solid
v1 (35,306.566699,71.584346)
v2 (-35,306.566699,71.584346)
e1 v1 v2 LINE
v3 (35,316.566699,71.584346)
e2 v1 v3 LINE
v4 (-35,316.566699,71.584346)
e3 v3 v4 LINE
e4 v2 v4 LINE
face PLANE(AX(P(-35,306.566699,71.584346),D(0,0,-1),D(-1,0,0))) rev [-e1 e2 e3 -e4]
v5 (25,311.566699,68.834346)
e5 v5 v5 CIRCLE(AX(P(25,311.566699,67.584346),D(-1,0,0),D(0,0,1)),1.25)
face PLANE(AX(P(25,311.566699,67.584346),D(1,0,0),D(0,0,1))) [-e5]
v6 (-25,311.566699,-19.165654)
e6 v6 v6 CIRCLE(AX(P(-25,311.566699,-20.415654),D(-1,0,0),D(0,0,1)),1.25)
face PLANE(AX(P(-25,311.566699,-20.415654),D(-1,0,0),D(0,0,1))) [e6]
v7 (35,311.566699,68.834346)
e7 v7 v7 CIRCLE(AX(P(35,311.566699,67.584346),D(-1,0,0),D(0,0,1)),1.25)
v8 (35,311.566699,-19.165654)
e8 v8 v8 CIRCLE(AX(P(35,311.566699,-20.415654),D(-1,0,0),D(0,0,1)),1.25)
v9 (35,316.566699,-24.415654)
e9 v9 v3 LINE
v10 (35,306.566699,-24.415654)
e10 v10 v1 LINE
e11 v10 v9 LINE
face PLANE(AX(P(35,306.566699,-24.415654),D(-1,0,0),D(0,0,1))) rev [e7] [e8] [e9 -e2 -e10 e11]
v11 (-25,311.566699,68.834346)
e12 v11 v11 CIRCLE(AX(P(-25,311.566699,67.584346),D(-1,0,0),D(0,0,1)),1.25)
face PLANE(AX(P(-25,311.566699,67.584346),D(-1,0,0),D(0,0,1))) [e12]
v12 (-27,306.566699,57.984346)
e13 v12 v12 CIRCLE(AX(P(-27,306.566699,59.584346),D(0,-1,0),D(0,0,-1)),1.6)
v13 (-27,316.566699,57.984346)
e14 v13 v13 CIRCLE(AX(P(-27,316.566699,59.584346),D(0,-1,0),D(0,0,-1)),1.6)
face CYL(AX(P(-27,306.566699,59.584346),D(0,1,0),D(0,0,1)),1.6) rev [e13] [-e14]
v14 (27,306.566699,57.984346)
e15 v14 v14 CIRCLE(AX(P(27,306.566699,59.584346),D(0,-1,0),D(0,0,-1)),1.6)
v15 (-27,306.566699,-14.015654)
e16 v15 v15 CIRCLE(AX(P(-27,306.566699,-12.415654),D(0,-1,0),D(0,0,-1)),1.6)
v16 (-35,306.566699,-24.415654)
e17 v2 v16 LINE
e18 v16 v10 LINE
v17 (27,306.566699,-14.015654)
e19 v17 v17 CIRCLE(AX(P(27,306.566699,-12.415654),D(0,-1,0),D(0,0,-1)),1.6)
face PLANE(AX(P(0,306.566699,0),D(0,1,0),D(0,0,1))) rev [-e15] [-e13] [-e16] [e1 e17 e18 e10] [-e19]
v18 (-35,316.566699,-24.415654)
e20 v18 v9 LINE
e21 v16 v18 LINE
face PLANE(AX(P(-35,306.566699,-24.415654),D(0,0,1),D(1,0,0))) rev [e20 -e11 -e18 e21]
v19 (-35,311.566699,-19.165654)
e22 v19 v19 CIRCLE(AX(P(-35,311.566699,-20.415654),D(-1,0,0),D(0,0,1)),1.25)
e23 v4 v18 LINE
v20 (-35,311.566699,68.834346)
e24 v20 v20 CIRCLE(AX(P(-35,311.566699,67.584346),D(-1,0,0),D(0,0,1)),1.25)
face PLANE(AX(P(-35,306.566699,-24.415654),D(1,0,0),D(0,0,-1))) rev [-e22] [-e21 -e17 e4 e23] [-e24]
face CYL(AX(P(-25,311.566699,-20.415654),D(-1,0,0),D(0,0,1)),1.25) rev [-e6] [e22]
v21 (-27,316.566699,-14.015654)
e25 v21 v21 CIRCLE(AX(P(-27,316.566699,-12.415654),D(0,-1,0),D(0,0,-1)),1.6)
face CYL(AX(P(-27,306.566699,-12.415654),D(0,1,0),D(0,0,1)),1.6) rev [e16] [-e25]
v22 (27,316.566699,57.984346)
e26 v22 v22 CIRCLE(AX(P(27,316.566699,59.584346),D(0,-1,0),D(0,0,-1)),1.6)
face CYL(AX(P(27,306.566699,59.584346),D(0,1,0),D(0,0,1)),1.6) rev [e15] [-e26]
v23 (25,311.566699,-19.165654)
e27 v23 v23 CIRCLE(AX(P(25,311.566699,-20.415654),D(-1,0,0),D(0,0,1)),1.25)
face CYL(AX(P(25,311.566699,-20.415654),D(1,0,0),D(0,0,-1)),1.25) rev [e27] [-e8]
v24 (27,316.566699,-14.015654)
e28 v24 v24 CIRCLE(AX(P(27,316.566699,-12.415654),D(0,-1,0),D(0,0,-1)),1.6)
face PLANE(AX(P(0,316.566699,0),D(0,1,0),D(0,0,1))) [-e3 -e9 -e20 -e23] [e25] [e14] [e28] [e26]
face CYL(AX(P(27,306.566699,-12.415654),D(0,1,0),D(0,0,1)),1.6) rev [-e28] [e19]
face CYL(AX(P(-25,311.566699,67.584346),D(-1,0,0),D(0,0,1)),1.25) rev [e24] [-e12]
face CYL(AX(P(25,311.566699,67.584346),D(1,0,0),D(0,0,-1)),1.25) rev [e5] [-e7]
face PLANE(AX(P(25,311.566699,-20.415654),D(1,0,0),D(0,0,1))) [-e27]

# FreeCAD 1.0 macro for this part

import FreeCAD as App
import Part
import Sketcher

V = App.Vector
Q = App.Units.Quantity

doc = App.newDocument("Part")
body = doc.addObject("PartDesign::Body", "Body")

# Sketch on XZ plane
sketch1 = body.newObject("Sketcher::SketchObject", "Sketch")
sketch1.AttachmentSupport = (doc.getObject("XZ_Plane"), [""])
sketch1.MapMode = "FlatFace"
sketch1.AttachmentOffset = App.Placement(V(0, 0, -316.566699), App.Rotation())
sketch1.addGeometry(Part.LineSegment(V(-35, 71.6, 0), V(-35, -24.4, 0)), False)
sketch1.addGeometry(Part.LineSegment(V(-35, -24.4, 0), V(35, -24.4, 0)), False)
sketch1.addGeometry(Part.LineSegment(V(35, -24.4, 0), V(35, 71.6, 0)), False)
sketch1.addGeometry(Part.LineSegment(V(35, 71.6, 0), V(-35, 71.6, 0)), False)
sketch1.addGeometry(Part.Circle(V(-27, -12.4, 0), V(0, 0, 1), 1.6), False)
sketch1.addGeometry(Part.Circle(V(27, -12.4, 0), V(0, 0, 1), 1.6), False)
sketch1.addGeometry(Part.Circle(V(-27, 59.6, 0), V(0, 0, 1), 1.6), False)
sketch1.addGeometry(Part.Circle(V(27, 59.6, 0), V(0, 0, 1), 1.6), False)
sketch1.addConstraint(Sketcher.Constraint("Coincident", 0, 2, 1, 1))
sketch1.addConstraint(Sketcher.Constraint("Coincident", 1, 2, 2, 1))
sketch1.addConstraint(Sketcher.Constraint("Coincident", 2, 2, 3, 1))
sketch1.addConstraint(Sketcher.Constraint("Coincident", 3, 2, 0, 1))
sketch1.addConstraint(Sketcher.Constraint("Vertical", 0))
sketch1.addConstraint(Sketcher.Constraint("Horizontal", 1))
sketch1.addConstraint(Sketcher.Constraint("Vertical", 2))
sketch1.addConstraint(Sketcher.Constraint("Horizontal", 3))
sketch1.addConstraint(Sketcher.Constraint("Equal", 4, 5))
sketch1.addConstraint(Sketcher.Constraint("Equal", 5, 6))
sketch1.addConstraint(Sketcher.Constraint("Equal", 6, 7))
sketch1.addConstraint(Sketcher.Constraint("Symmetric", 4, 3, 5, 3, -2))
sketch1.addConstraint(Sketcher.Constraint("Symmetric", 6, 3, 7, 3, -2))
sketch1.addConstraint(Sketcher.Constraint("Vertical", 4, 3, 6, 3))
sketch1.addConstraint(Sketcher.Constraint("Diameter", 4, Q("3.2 mm")))
sketch1.addConstraint(Sketcher.Constraint("DistanceX", 1, 1, 1, 2, Q("70 mm")))
sketch1.addConstraint(Sketcher.Constraint("DistanceY", 0, 2, 0, 1, Q("96 mm")))
sketch1.addConstraint(Sketcher.Constraint("DistanceX", 4, 3, -1, 1, Q("27 mm")))
sketch1.addConstraint(Sketcher.Constraint("DistanceX", 0, 2, -1, 1, Q("35 mm")))
sketch1.addConstraint(Sketcher.Constraint("DistanceY", 4, 3, 6, 3, Q("72 mm")))
sketch1.addConstraint(Sketcher.Constraint("DistanceY", 0, 2, 4, 3, Q("12 mm")))
sketch1.addConstraint(Sketcher.Constraint("DistanceY", 4, 3, -1, 1, Q("12.415654 mm")))
pad1 = body.newObject("PartDesign::Pad", "Pad")
pad1.Profile = sketch1
pad1.Length = 10

# Sketch on YZ plane
sketch2 = body.newObject("Sketcher::SketchObject", "Sketch001")
sketch2.AttachmentSupport = (doc.getObject("YZ_Plane"), [""])
sketch2.MapMode = "FlatFace"
sketch2.AttachmentOffset = App.Placement(V(0, 0, -35), App.Rotation())
sketch2.addGeometry(Part.Circle(V(311.6, -20.4, 0), V(0, 0, 1), 1.2), False)
sketch2.addGeometry(Part.Circle(V(311.6, 67.6, 0), V(0, 0, 1), 1.2), False)
sketch2.addConstraint(Sketcher.Constraint("Equal", 0, 1))
sketch2.addConstraint(Sketcher.Constraint("Vertical", 0, 3, 1, 3))
sketch2.addConstraint(Sketcher.Constraint("Diameter", 0, Q("2.5 mm")))
sketch2.addConstraint(Sketcher.Constraint("DistanceY", 0, 3, 1, 3, Q("88 mm")))
sketch2.addConstraint(Sketcher.Constraint("DistanceX", -1, 1, 0, 3, Q("311.566699 mm")))
sketch2.addConstraint(Sketcher.Constraint("DistanceY", 0, 3, -1, 1, Q("20.415654 mm")))
pocket1 = body.newObject("PartDesign::Pocket", "Pocket")
pocket1.Profile = sketch2
pocket1.Length = 10
pocket1.Reversed = True
doc.recompute()

mirrored = body.newObject("PartDesign::Mirrored", "Mirrored")
mirrored.Originals = [pocket1]
mirrored.MirrorPlane = (doc.getObject("YZ_Plane"), [""])
body.Tip = mirrored

doc.recompute()
